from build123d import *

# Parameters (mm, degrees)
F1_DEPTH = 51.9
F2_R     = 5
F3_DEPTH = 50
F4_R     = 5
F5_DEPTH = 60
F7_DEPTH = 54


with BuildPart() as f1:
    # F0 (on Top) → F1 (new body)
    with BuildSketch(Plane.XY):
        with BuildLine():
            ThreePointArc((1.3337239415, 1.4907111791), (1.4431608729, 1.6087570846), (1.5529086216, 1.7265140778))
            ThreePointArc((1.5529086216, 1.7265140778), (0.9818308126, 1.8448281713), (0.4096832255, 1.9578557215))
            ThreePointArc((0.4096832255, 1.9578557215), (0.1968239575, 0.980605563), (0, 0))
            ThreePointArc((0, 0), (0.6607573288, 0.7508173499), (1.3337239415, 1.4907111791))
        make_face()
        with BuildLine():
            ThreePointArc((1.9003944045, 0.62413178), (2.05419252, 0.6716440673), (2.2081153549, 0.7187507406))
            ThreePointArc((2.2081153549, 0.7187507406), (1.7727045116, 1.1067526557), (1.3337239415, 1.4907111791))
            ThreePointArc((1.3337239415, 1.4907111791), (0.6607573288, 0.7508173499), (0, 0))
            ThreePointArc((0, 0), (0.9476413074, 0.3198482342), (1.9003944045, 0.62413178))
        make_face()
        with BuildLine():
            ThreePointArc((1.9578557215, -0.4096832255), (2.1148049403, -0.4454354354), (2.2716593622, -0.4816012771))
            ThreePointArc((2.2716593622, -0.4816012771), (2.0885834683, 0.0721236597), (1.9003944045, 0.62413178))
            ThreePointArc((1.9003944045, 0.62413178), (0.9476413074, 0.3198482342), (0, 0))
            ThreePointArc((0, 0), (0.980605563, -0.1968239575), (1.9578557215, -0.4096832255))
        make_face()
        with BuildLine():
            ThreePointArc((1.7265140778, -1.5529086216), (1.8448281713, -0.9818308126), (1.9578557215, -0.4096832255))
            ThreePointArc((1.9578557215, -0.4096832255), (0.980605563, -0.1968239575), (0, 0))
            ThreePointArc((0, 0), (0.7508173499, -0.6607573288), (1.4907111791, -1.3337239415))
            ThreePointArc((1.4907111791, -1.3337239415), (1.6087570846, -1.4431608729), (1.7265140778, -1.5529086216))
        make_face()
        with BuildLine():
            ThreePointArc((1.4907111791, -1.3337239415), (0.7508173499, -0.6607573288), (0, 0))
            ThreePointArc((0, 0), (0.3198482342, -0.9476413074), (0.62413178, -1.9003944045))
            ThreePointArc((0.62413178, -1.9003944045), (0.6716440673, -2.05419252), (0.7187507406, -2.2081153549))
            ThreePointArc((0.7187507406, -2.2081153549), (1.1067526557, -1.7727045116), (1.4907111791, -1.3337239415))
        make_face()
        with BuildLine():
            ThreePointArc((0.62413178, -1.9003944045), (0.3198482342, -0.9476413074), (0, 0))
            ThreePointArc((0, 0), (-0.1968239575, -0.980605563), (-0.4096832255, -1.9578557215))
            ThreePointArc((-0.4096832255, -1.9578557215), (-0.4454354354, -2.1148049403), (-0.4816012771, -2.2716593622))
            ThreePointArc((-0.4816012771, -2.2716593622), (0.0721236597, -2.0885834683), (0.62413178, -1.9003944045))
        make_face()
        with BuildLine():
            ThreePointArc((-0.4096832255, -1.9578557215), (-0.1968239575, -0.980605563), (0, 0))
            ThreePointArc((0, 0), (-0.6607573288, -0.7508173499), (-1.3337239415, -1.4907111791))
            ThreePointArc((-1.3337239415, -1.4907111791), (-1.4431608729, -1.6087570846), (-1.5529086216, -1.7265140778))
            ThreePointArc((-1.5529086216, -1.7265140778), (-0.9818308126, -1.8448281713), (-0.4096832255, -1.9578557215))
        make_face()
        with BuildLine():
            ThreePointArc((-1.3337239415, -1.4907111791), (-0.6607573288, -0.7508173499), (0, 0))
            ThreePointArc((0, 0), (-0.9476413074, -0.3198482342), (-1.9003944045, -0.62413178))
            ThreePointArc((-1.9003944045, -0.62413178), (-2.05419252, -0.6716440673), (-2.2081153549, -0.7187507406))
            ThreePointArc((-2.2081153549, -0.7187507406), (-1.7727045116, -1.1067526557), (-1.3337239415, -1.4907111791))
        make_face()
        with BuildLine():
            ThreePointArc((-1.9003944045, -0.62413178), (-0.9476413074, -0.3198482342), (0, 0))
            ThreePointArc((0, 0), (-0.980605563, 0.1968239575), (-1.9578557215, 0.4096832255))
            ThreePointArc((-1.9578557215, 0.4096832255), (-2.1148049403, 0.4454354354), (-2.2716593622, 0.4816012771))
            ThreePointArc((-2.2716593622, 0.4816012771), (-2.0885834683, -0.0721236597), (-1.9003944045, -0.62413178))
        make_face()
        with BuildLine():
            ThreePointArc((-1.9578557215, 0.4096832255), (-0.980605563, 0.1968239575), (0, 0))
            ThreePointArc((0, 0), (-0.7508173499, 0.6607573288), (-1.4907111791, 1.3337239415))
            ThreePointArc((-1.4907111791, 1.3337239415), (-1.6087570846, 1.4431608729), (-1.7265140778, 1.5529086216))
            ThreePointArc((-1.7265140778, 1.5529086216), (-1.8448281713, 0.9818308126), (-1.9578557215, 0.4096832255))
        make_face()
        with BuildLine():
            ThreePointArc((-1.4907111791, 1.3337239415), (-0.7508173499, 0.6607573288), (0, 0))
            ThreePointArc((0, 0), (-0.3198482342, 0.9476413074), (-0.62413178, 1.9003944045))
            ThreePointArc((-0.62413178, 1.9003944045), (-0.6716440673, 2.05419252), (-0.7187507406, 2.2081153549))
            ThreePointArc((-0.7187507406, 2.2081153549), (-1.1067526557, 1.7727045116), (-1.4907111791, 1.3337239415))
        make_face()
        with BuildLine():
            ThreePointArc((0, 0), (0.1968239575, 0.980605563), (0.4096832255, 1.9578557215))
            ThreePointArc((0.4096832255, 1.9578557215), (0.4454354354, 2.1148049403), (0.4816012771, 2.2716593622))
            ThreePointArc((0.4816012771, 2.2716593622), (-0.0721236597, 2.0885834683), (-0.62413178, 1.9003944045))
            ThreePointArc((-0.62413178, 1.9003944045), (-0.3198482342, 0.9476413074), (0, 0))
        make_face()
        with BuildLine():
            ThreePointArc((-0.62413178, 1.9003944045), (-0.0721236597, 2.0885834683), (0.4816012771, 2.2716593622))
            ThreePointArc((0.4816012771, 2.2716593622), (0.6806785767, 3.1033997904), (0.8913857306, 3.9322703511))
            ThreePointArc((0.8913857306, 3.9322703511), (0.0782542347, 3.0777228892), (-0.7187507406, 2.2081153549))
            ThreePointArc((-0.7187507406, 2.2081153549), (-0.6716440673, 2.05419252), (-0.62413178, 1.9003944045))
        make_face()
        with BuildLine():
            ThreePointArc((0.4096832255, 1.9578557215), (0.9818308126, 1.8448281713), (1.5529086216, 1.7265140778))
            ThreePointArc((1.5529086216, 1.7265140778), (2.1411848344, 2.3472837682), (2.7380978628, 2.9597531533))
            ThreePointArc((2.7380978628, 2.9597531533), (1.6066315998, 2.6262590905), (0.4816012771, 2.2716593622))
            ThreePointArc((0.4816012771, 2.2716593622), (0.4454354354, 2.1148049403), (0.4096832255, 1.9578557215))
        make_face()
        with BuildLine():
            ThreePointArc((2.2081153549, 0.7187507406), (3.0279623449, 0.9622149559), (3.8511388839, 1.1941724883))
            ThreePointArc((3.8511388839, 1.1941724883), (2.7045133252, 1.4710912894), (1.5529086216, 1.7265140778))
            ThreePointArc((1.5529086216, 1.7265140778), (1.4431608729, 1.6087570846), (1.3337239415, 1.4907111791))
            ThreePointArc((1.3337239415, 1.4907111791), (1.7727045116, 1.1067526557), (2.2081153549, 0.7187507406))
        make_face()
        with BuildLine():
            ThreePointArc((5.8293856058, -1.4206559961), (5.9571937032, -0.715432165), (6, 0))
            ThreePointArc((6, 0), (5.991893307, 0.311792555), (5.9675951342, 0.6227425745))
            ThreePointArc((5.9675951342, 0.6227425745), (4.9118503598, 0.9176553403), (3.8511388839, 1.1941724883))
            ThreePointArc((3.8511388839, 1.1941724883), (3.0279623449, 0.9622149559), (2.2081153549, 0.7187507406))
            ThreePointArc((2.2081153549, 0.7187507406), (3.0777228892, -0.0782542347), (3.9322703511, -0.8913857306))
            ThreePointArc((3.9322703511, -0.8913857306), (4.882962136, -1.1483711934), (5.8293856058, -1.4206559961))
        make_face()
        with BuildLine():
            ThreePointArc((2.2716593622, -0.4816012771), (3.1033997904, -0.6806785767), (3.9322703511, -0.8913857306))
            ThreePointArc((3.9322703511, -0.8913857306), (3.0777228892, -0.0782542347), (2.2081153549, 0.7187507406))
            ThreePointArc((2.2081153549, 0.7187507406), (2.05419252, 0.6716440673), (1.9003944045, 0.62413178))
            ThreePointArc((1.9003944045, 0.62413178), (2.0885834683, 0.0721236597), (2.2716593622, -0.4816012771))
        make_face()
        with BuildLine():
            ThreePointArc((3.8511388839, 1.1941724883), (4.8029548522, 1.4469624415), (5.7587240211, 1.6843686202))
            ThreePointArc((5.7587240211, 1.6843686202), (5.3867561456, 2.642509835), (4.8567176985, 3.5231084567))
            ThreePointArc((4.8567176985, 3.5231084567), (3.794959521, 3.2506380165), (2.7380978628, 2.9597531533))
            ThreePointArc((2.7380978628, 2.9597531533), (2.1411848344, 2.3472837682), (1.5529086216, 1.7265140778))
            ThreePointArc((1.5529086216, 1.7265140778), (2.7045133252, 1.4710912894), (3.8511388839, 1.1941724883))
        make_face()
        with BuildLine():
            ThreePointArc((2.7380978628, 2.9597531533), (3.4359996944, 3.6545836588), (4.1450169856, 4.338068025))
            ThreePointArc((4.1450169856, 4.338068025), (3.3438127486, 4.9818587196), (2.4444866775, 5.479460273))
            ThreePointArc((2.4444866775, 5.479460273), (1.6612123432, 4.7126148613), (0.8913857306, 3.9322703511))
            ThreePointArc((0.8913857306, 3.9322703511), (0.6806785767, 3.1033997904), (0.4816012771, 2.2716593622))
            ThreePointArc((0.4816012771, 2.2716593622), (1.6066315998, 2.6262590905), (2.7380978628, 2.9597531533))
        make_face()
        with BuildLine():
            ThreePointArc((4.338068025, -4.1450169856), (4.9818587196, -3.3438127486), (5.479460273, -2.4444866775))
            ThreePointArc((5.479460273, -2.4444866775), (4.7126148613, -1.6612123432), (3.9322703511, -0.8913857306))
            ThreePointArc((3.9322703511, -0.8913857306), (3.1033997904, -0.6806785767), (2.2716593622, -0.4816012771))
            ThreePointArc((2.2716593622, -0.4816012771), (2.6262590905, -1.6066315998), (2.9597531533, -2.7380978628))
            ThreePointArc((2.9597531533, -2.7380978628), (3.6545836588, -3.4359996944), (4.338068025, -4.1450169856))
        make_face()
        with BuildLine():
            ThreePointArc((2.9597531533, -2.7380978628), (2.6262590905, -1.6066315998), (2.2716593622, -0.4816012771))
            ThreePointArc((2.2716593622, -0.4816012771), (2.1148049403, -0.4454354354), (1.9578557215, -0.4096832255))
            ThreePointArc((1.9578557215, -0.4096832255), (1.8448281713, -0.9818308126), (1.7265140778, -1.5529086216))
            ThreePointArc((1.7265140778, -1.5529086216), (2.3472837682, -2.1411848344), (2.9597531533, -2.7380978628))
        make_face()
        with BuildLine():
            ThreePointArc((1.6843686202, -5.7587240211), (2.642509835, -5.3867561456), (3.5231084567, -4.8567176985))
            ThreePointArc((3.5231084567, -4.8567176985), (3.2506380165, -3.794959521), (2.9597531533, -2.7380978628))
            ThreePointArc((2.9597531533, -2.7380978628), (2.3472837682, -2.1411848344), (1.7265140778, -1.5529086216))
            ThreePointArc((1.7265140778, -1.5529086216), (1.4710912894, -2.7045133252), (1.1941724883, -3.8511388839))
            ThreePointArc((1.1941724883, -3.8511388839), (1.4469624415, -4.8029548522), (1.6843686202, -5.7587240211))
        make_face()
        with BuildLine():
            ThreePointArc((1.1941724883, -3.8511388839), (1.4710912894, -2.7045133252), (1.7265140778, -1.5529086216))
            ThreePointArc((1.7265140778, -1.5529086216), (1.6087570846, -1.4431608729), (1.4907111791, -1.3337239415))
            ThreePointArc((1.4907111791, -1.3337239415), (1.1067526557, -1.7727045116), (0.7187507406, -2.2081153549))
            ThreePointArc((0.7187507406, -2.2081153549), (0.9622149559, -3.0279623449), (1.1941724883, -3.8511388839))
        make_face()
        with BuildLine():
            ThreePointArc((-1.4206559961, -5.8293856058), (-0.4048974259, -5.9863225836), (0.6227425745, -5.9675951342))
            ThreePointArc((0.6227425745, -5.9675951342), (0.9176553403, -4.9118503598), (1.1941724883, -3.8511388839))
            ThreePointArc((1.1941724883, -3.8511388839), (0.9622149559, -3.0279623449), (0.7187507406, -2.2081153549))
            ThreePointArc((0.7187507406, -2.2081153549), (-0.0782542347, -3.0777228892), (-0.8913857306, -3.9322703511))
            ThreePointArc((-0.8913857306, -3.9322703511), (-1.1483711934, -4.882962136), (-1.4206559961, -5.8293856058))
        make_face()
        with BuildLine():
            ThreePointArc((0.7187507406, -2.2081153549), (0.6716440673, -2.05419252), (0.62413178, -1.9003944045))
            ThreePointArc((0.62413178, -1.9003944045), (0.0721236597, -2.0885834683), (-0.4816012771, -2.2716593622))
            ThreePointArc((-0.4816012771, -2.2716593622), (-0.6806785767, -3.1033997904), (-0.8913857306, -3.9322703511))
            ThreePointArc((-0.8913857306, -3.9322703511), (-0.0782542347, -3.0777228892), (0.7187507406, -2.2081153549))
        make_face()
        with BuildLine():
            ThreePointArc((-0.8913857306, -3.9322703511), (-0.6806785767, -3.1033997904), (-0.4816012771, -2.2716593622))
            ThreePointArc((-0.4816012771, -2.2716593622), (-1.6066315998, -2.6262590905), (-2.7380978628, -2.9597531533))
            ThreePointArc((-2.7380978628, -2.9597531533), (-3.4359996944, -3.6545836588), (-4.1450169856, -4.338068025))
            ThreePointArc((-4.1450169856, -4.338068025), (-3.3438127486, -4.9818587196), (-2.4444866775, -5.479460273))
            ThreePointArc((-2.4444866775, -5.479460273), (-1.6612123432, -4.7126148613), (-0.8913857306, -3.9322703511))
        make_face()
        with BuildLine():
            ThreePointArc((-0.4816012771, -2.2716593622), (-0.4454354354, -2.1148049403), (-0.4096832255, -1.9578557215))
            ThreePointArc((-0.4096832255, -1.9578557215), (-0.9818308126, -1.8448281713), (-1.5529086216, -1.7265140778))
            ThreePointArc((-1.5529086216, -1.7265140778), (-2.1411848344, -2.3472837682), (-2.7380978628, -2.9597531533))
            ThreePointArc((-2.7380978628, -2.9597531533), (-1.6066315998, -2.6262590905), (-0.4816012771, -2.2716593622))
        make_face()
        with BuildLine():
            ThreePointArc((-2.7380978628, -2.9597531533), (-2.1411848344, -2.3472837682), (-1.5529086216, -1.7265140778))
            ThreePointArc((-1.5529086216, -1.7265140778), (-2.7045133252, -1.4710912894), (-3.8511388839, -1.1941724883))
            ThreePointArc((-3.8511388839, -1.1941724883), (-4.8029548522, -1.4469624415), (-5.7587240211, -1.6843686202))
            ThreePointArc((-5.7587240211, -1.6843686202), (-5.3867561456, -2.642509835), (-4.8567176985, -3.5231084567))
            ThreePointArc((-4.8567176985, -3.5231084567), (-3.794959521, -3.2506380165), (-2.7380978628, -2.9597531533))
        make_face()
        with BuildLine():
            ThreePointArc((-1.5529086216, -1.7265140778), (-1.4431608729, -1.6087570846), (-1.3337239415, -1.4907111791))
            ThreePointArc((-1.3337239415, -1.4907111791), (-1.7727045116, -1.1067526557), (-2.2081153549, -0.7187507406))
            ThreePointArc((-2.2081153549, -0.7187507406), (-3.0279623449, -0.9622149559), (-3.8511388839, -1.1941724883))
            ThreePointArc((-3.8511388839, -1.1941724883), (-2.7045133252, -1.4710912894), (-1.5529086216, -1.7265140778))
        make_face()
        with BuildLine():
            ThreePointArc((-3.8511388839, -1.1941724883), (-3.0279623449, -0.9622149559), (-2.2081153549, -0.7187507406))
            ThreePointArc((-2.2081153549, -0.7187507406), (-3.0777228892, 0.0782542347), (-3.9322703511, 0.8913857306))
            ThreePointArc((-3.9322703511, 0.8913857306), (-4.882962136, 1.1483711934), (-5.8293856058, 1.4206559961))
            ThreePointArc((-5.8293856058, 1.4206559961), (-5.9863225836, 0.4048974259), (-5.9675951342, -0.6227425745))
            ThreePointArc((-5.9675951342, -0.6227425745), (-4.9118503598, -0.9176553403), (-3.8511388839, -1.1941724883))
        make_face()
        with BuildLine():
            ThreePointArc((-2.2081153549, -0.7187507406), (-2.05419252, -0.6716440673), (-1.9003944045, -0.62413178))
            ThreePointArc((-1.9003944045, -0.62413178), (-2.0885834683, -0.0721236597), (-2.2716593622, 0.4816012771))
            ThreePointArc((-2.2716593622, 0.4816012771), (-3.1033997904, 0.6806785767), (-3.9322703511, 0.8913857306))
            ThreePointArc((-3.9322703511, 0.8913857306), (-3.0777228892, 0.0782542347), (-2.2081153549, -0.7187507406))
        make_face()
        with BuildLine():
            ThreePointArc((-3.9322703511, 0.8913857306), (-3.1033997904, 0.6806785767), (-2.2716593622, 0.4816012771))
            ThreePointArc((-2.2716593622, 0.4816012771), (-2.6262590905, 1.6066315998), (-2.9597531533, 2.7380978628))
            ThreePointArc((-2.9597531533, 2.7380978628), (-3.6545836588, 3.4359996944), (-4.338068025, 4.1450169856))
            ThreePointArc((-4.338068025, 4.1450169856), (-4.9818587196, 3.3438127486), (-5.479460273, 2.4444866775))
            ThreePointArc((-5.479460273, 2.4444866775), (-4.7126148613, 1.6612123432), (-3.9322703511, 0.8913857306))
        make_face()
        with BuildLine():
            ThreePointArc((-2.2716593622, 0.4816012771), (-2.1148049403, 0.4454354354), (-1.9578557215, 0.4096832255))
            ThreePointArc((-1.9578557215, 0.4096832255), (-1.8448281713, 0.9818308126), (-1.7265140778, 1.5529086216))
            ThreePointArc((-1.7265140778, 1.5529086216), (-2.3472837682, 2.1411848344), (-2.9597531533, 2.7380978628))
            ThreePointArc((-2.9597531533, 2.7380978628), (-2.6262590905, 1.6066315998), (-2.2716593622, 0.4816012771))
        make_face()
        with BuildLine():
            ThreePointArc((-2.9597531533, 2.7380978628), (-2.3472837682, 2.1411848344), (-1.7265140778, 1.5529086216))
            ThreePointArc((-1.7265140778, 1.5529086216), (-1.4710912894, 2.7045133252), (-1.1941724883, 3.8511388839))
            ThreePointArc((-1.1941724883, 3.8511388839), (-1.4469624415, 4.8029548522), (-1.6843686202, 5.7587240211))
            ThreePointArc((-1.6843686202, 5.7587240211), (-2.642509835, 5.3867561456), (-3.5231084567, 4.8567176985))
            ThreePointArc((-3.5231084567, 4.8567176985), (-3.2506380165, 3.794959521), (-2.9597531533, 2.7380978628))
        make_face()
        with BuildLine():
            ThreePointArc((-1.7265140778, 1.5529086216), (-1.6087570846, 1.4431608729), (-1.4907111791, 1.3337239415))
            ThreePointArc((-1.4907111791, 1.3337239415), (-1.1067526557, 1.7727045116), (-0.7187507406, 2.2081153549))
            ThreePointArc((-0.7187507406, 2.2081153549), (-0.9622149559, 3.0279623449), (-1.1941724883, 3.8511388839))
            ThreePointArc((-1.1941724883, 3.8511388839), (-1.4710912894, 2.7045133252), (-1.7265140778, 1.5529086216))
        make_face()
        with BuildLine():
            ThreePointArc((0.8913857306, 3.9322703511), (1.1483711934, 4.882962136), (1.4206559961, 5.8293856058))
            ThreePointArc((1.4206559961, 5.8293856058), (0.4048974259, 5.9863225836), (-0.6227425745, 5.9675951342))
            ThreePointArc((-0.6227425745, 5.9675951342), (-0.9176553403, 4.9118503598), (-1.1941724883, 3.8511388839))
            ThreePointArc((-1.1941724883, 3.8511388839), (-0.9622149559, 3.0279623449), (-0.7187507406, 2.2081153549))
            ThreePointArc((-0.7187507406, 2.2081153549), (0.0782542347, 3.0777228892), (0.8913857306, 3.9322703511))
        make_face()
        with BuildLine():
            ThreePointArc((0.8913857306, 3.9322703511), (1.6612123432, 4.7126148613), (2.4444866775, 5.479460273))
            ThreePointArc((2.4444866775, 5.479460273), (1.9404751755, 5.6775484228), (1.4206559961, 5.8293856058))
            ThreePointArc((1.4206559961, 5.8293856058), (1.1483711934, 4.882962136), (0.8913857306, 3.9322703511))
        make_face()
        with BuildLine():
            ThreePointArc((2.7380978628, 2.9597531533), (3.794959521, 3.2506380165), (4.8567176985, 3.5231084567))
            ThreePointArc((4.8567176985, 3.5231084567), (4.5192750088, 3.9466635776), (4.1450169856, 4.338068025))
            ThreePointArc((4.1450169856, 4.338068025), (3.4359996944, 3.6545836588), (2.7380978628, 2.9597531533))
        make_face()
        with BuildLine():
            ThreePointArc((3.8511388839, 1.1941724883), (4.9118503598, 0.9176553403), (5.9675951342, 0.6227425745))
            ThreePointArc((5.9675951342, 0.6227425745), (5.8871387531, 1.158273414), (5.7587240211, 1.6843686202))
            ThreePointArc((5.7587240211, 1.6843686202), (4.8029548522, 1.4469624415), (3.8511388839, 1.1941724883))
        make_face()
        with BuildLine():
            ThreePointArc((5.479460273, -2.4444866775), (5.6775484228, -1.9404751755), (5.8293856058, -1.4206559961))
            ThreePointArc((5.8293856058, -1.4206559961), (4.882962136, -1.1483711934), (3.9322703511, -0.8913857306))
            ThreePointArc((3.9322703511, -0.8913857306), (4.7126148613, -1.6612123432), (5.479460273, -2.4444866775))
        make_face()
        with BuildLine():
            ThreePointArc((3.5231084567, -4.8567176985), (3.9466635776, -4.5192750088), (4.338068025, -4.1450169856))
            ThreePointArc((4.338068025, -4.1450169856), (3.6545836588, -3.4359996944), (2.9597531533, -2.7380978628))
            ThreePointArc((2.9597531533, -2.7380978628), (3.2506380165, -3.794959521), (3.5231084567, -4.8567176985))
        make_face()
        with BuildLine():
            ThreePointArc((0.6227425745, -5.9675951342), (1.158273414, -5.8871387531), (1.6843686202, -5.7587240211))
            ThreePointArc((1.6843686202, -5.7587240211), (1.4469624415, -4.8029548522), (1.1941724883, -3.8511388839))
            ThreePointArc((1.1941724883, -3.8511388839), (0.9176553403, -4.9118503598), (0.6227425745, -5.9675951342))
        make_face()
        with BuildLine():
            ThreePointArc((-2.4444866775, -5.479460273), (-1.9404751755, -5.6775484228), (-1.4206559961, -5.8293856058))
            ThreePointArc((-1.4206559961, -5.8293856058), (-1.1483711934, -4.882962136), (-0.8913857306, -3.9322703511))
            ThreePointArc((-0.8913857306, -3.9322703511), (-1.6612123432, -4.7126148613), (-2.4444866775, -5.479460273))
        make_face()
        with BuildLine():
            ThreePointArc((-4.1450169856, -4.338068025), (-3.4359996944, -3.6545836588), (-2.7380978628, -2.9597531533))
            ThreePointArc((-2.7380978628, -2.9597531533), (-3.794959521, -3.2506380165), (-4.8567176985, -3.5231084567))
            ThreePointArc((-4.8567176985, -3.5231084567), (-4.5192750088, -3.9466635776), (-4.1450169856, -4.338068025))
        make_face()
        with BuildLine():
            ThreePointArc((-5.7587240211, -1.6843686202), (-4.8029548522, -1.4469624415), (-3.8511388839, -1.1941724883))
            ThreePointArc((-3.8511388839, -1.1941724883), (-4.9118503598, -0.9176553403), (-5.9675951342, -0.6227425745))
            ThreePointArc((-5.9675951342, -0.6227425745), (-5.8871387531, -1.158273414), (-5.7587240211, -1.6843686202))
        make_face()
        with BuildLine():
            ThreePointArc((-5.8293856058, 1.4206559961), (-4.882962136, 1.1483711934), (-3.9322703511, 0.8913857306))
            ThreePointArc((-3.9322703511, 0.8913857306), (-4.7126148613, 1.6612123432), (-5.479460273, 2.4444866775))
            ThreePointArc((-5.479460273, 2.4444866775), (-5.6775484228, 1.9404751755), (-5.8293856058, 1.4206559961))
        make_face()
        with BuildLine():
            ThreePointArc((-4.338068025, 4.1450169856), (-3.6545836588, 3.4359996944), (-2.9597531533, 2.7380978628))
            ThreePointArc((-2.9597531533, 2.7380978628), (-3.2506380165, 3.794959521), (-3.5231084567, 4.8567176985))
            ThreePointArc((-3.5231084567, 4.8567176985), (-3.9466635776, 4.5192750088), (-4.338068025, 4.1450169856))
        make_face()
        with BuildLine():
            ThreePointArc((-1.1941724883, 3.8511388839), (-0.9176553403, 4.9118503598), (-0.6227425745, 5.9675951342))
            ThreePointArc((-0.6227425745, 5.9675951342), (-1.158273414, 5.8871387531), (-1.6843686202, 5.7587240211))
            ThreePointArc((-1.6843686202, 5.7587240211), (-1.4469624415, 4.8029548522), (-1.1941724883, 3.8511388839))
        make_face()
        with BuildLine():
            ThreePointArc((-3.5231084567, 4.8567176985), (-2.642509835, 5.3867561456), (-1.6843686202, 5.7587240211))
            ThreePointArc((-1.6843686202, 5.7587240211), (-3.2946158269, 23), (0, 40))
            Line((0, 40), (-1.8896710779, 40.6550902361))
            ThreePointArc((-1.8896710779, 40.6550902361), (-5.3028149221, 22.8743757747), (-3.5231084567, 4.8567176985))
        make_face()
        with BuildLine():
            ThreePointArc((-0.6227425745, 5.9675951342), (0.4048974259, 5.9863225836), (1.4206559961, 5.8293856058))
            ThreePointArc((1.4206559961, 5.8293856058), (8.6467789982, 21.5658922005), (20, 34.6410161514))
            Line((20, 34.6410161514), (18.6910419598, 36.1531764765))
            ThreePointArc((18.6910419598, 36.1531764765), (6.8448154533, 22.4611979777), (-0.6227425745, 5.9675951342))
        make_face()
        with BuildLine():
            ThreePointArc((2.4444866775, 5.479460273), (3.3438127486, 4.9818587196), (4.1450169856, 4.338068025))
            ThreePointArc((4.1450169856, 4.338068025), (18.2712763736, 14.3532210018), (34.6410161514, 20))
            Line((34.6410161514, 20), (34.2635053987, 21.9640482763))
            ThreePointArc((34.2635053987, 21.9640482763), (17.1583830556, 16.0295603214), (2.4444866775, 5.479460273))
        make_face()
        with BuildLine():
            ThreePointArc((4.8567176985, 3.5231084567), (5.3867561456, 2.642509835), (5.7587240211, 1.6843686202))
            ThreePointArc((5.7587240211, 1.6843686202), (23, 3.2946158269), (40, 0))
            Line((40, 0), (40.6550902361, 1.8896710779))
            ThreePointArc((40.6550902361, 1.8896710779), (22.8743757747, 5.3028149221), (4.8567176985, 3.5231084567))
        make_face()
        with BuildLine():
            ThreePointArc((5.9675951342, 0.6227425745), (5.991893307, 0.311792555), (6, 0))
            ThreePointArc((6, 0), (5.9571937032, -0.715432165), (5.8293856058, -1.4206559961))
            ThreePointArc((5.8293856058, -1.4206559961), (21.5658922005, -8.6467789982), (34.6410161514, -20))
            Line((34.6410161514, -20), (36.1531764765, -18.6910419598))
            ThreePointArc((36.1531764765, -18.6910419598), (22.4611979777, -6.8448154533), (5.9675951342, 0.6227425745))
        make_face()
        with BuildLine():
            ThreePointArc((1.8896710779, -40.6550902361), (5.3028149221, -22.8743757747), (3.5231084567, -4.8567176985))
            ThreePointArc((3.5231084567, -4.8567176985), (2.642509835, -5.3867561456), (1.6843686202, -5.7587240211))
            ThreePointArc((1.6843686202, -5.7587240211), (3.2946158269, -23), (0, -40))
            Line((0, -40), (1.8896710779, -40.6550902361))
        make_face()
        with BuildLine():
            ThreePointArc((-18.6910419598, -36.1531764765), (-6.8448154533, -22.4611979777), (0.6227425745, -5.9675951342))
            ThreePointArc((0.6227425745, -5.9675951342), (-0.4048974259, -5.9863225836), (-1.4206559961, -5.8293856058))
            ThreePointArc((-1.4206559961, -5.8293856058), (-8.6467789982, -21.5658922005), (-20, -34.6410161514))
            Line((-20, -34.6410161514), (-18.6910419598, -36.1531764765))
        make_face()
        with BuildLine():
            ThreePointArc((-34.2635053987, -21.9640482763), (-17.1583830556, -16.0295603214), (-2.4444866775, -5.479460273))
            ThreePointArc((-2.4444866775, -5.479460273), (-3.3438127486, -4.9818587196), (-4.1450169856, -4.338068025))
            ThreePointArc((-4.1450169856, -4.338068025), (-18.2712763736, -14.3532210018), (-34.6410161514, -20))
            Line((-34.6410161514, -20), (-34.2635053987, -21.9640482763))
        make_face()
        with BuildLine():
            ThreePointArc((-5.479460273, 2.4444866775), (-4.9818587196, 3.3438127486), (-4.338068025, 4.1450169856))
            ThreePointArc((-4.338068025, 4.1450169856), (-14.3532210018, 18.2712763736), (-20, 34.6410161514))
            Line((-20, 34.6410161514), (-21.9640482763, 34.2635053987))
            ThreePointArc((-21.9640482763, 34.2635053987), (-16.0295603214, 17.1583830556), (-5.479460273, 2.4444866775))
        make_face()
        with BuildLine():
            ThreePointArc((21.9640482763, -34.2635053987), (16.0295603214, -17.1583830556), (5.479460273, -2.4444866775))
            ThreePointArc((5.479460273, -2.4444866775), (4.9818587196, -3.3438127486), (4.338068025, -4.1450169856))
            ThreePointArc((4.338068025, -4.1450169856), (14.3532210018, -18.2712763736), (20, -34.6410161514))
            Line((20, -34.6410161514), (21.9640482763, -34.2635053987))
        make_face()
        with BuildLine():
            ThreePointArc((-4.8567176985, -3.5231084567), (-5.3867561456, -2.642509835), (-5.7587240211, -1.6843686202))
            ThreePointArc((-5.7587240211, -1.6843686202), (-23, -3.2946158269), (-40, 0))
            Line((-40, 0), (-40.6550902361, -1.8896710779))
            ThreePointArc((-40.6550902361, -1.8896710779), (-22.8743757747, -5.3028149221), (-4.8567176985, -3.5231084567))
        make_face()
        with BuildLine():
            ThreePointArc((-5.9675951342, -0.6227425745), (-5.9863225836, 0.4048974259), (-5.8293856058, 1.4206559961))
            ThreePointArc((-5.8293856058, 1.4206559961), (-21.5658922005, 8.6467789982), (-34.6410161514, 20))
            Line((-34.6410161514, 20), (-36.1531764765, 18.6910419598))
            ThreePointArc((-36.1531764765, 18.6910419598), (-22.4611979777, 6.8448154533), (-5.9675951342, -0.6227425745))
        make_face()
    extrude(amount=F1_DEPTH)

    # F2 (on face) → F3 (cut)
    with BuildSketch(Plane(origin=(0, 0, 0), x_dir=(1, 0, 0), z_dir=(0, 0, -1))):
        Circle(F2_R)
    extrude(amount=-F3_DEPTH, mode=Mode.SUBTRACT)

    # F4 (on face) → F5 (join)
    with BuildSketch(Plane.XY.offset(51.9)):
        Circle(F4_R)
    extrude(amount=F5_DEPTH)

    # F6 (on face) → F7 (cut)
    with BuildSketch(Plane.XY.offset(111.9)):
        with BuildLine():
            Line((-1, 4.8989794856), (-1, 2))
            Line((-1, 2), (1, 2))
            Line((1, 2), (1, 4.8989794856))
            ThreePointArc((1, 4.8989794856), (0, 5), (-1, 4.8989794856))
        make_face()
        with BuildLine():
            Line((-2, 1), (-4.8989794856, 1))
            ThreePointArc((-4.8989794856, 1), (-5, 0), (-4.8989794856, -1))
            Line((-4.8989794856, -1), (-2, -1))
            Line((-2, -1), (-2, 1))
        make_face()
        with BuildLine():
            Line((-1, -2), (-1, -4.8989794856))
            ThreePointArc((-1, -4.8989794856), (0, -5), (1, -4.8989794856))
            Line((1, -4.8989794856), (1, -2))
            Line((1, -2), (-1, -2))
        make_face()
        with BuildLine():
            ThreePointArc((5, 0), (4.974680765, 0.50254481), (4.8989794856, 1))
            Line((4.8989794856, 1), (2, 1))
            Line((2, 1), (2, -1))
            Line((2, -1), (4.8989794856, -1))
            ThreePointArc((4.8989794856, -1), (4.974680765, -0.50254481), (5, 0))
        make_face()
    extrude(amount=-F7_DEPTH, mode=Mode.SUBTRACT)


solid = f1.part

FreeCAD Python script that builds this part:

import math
import FreeCAD as App
import Part
import Sketcher
from FreeCAD import Vector

doc = App.newDocument("Part")
params = doc.addObject("Spreadsheet::Sheet", "Params")
for row, (alias, value) in enumerate([
    ("sketch1_radius", "6 mm"),
    ("sketch1_length", "2 mm"),
    ("pad1_length", "51.9 mm"),
    ("sketch2_diameter", "10 mm"),
    ("pocket1_length", "50 mm"),
    ("sketch3_diameter", "10 mm"),
    ("pad2_length", "60 mm"),
    ("sketch4_radius", "5 mm"),
    ("sketch4_width", "2 mm"),
    ("pocket2_length", "54 mm"),
], start=1):
    params.set(f"A{row}", alias)
    params.set(f"B{row}", "=" + value)
    params.setAlias(f"B{row}", alias)

body = doc.addObject("PartDesign::Body", "Body")

sketch1 = body.newObject("Sketcher::SketchObject", "Sketch")
sketch1.AttachmentSupport = (doc.getObject("XY_Plane"), [""])
sketch1.MapMode = "FlatFace"
sketch1.addGeometry(Part.ArcOfCircle(Part.Circle(Vector(0, 0, 0), Vector(0, 0, 1), 6), math.radians(125.96), math.radians(136.3)), False)
sketch1.addGeometry(Part.ArcOfCircle(Part.Circle(Vector(40, 46.2, 0), Vector(0, 0, 1), 61.1), math.radians(-169), math.radians(-137)), False)
sketch1.addGeometry(Part.LineSegment(Vector(-20, 34.6, 0), Vector(-22, 34.3, 0)), False)
sketch1.addGeometry(Part.ArcOfCircle(Part.Circle(Vector(40, 46.2, 0), Vector(0, 0, 1), 63.1), math.radians(-169), math.radians(-136)), False)
sketch1.addGeometry(Part.ArcOfCircle(Part.Circle(Vector(0, 0, 0), Vector(0, 0, 1), 6), math.radians(155.96), math.radians(166.3)), False)
sketch1.addGeometry(Part.ArcOfCircle(Part.Circle(Vector(11.5, 60, 0), Vector(0, 0, 1), 61.1), math.radians(-139), math.radians(-107)), False)
sketch1.addGeometry(Part.LineSegment(Vector(-34.6, 20, 0), Vector(-36.2, 18.7, 0)), False)
sketch1.addGeometry(Part.ArcOfCircle(Part.Circle(Vector(11.5, 60, 0), Vector(0, 0, 1), 63.1), math.radians(-139), math.radians(-106)), False)
sketch1.addGeometry(Part.ArcOfCircle(Part.Circle(Vector(0, 0, 0), Vector(0, 0, 1), 6), math.radians(-174.04), math.radians(-163.7)), False)
sketch1.addGeometry(Part.ArcOfCircle(Part.Circle(Vector(-20, 57.7, 0), Vector(0, 0, 1), 61.1), math.radians(-109), math.radians(-77)), False)
sketch1.addGeometry(Part.LineSegment(Vector(-40, 0, 0), Vector(-40.7, -1.9, 0)), False)
sketch1.addGeometry(Part.ArcOfCircle(Part.Circle(Vector(-20, 57.7, 0), Vector(0, 0, 1), 63.1), math.radians(-109), math.radians(-76)), False)
sketch1.addGeometry(Part.ArcOfCircle(Part.Circle(Vector(0, 0, 0), Vector(0, 0, 1), 6), math.radians(-144.04), math.radians(-133.7)), False)
sketch1.addGeometry(Part.ArcOfCircle(Part.Circle(Vector(-46.2, 40, 0), Vector(0, 0, 1), 61.1), math.radians(-79), math.radians(-47)), False)
sketch1.addGeometry(Part.LineSegment(Vector(-34.6, -20, 0), Vector(-34.3, -22, 0)), False)
sketch1.addGeometry(Part.ArcOfCircle(Part.Circle(Vector(-46.2, 40, 0), Vector(0, 0, 1), 63.1), math.radians(-79), math.radians(-46)), False)
sketch1.addGeometry(Part.ArcOfCircle(Part.Circle(Vector(0, 0, 0), Vector(0, 0, 1), 6), math.radians(-114.04), math.radians(-103.7)), False)
sketch1.addGeometry(Part.ArcOfCircle(Part.Circle(Vector(-60, 11.5, 0), Vector(0, 0, 1), 61.1), math.radians(-49), math.radians(-17)), False)
sketch1.addGeometry(Part.LineSegment(Vector(-20, -34.6, 0), Vector(-18.7, -36.2, 0)), False)
sketch1.addGeometry(Part.ArcOfCircle(Part.Circle(Vector(-60, 11.5, 0), Vector(0, 0, 1), 63.1), math.radians(-49), math.radians(-16)), False)
sketch1.addGeometry(Part.ArcOfCircle(Part.Circle(Vector(0, 0, 0), Vector(0, 0, 1), 6), math.radians(-84.04), math.radians(-73.7)), False)
sketch1.addGeometry(Part.ArcOfCircle(Part.Circle(Vector(-57.7, -20, 0), Vector(0, 0, 1), 61.1), math.radians(-19), math.radians(13)), False)
sketch1.addGeometry(Part.LineSegment(Vector(0, -40, 0), Vector(1.9, -40.7, 0)), False)
sketch1.addGeometry(Part.ArcOfCircle(Part.Circle(Vector(-57.7, -20, 0), Vector(0, 0, 1), 63.1), math.radians(-19), math.radians(14)), False)
sketch1.addGeometry(Part.ArcOfCircle(Part.Circle(Vector(0, 0, 0), Vector(0, 0, 1), 6), math.radians(-54.04), math.radians(-43.7)), False)
sketch1.addGeometry(Part.ArcOfCircle(Part.Circle(Vector(-40, -46.2, 0), Vector(0, 0, 1), 61.1), math.radians(11), math.radians(43)), False)
sketch1.addGeometry(Part.LineSegment(Vector(20, -34.6, 0), Vector(22, -34.3, 0)), False)
sketch1.addGeometry(Part.ArcOfCircle(Part.Circle(Vector(-40, -46.2, 0), Vector(0, 0, 1), 63.1), math.radians(11), math.radians(44)), False)
sketch1.addGeometry(Part.ArcOfCircle(Part.Circle(Vector(0, 0, 0), Vector(0, 0, 1), 6), math.radians(-24.04), math.radians(-13.7)), False)
sketch1.addGeometry(Part.ArcOfCircle(Part.Circle(Vector(-11.5, -60, 0), Vector(0, 0, 1), 61.1), math.radians(41), math.radians(73)), False)
sketch1.addGeometry(Part.LineSegment(Vector(34.6, -20, 0), Vector(36.2, -18.7, 0)), False)
sketch1.addGeometry(Part.ArcOfCircle(Part.Circle(Vector(-11.5, -60, 0), Vector(0, 0, 1), 63.1), math.radians(41), math.radians(74)), False)
sketch1.addGeometry(Part.ArcOfCircle(Part.Circle(Vector(0, 0, 0), Vector(0, 0, 1), 6), math.radians(5.96), math.radians(16.3)), False)
sketch1.addGeometry(Part.ArcOfCircle(Part.Circle(Vector(20, -57.7, 0), Vector(0, 0, 1), 61.1), math.radians(71), math.radians(103)), False)
sketch1.addGeometry(Part.LineSegment(Vector(40, 0, 0), Vector(40.7, 1.9, 0)), False)
sketch1.addGeometry(Part.ArcOfCircle(Part.Circle(Vector(20, -57.7, 0), Vector(0, 0, 1), 63.1), math.radians(71), math.radians(104)), False)
sketch1.addGeometry(Part.ArcOfCircle(Part.Circle(Vector(0, 0, 0), Vector(0, 0, 1), 6), math.radians(35.96), math.radians(46.3)), False)
sketch1.addGeometry(Part.ArcOfCircle(Part.Circle(Vector(46.2, -40, 0), Vector(0, 0, 1), 61.1), math.radians(101), math.radians(133)), False)
sketch1.addGeometry(Part.LineSegment(Vector(34.6, 20, 0), Vector(34.3, 22, 0)), False)
sketch1.addGeometry(Part.ArcOfCircle(Part.Circle(Vector(46.2, -40, 0), Vector(0, 0, 1), 63.1), math.radians(101), math.radians(134)), False)
sketch1.addGeometry(Part.ArcOfCircle(Part.Circle(Vector(0, 0, 0), Vector(0, 0, 1), 6), math.radians(65.96), math.radians(76.3)), False)
sketch1.addGeometry(Part.ArcOfCircle(Part.Circle(Vector(60, -11.5, 0), Vector(0, 0, 1), 61.1), math.radians(131), math.radians(163)), False)
sketch1.addGeometry(Part.LineSegment(Vector(20, 34.6, 0), Vector(18.7, 36.2, 0)), False)
sketch1.addGeometry(Part.ArcOfCircle(Part.Circle(Vector(60, -11.5, 0), Vector(0, 0, 1), 63.1), math.radians(131), math.radians(164)), False)
sketch1.addGeometry(Part.ArcOfCircle(Part.Circle(Vector(0, 0, 0), Vector(0, 0, 1), 6), math.radians(95.96), math.radians(106.3)), False)
sketch1.addGeometry(Part.ArcOfCircle(Part.Circle(Vector(57.7, 20, 0), Vector(0, 0, 1), 61.1), math.radians(161), math.radians(193)), False)
sketch1.addGeometry(Part.LineSegment(Vector(0, 40, 0), Vector(-1.9, 40.7, 0)), False)
sketch1.addGeometry(Part.ArcOfCircle(Part.Circle(Vector(57.7, 20, 0), Vector(0, 0, 1), 63.1), math.radians(161), math.radians(194)), False)
sketch1.addConstraint(Sketcher.Constraint("Coincident", 0, 2, 1, 2))
sketch1.addConstraint(Sketcher.Constraint("Coincident", 1, 1, 2, 1))
sketch1.addConstraint(Sketcher.Constraint("Coincident", 2, 2, 3, 1))
sketch1.addConstraint(Sketcher.Constraint("Coincident", 3, 2, 4, 1))
sketch1.addConstraint(Sketcher.Constraint("Coincident", 4, 2, 5, 2))
sketch1.addConstraint(Sketcher.Constraint("Coincident", 5, 1, 6, 1))
sketch1.addConstraint(Sketcher.Constraint("Coincident", 6, 2, 7, 1))
sketch1.addConstraint(Sketcher.Constraint("Coincident", 7, 2, 8, 1))
sketch1.addConstraint(Sketcher.Constraint("Coincident", 8, 2, 9, 2))
sketch1.addConstraint(Sketcher.Constraint("Coincident", 9, 1, 10, 1))
sketch1.addConstraint(Sketcher.Constraint("Coincident", 10, 2, 11, 1))
sketch1.addConstraint(Sketcher.Constraint("Coincident", 11, 2, 12, 1))
sketch1.addConstraint(Sketcher.Constraint("Coincident", 12, 2, 13, 2))
sketch1.addConstraint(Sketcher.Constraint("Coincident", 13, 1, 14, 1))
sketch1.addConstraint(Sketcher.Constraint("Coincident", 14, 2, 15, 1))
sketch1.addConstraint(Sketcher.Constraint("Coincident", 15, 2, 16, 1))
sketch1.addConstraint(Sketcher.Constraint("Coincident", 16, 2, 17, 2))
sketch1.addConstraint(Sketcher.Constraint("Coincident", 17, 1, 18, 1))
sketch1.addConstraint(Sketcher.Constraint("Coincident", 18, 2, 19, 1))
sketch1.addConstraint(Sketcher.Constraint("Coincident", 19, 2, 20, 1))
sketch1.addConstraint(Sketcher.Constraint("Coincident", 20, 2, 21, 2))
sketch1.addConstraint(Sketcher.Constraint("Coincident", 21, 1, 22, 1))
sketch1.addConstraint(Sketcher.Constraint("Coincident", 22, 2, 23, 1))
sketch1.addConstraint(Sketcher.Constraint("Coincident", 23, 2, 24, 1))
sketch1.addConstraint(Sketcher.Constraint("Coincident", 24, 2, 25, 2))
sketch1.addConstraint(Sketcher.Constraint("Coincident", 25, 1, 26, 1))
sketch1.addConstraint(Sketcher.Constraint("Coincident", 26, 2, 27, 1))
sketch1.addConstraint(Sketcher.Constraint("Coincident", 27, 2, 28, 1))
sketch1.addConstraint(Sketcher.Constraint("Coincident", 28, 2, 29, 2))
sketch1.addConstraint(Sketcher.Constraint("Coincident", 29, 1, 30, 1))
sketch1.addConstraint(Sketcher.Constraint("Coincident", 30, 2, 31, 1))
sketch1.addConstraint(Sketcher.Constraint("Coincident", 31, 2, 32, 1))
sketch1.addConstraint(Sketcher.Constraint("Coincident", 32, 2, 33, 2))
sketch1.addConstraint(Sketcher.Constraint("Coincident", 33, 1, 34, 1))
sketch1.addConstraint(Sketcher.Constraint("Coincident", 34, 2, 35, 1))
sketch1.addConstraint(Sketcher.Constraint("Coincident", 35, 2, 36, 1))
sketch1.addConstraint(Sketcher.Constraint("Coincident", 36, 2, 37, 2))
sketch1.addConstraint(Sketcher.Constraint("Coincident", 37, 1, 38, 1))
sketch1.addConstraint(Sketcher.Constraint("Coincident", 38, 2, 39, 1))
sketch1.addConstraint(Sketcher.Constraint("Coincident", 39, 2, 40, 1))
sketch1.addConstraint(Sketcher.Constraint("Coincident", 40, 2, 41, 2))
sketch1.addConstraint(Sketcher.Constraint("Coincident", 41, 1, 42, 1))
sketch1.addConstraint(Sketcher.Constraint("Coincident", 42, 2, 43, 1))
sketch1.addConstraint(Sketcher.Constraint("Coincident", 43, 2, 44, 1))
sketch1.addConstraint(Sketcher.Constraint("Coincident", 44, 2, 45, 2))
sketch1.addConstraint(Sketcher.Constraint("Coincident", 45, 1, 46, 1))
sketch1.addConstraint(Sketcher.Constraint("Coincident", 46, 2, 47, 1))
sketch1.addConstraint(Sketcher.Constraint("Coincident", 47, 2, 0, 1))
sketch1.addConstraint(Sketcher.Constraint("Coincident", 0, 3, -1, 1))
sketch1.addConstraint(Sketcher.Constraint("Coincident", 4, 3, -1, 1))
sketch1.addConstraint(Sketcher.Constraint("Coincident", 8, 3, -1, 1))
sketch1.addConstraint(Sketcher.Constraint("Coincident", 12, 3, -1, 1))
sketch1.addConstraint(Sketcher.Constraint("Coincident", 16, 3, -1, 1))
sketch1.addConstraint(Sketcher.Constraint("Coincident", 20, 3, -1, 1))
sketch1.addConstraint(Sketcher.Constraint("Coincident", 24, 3, -1, 1))
sketch1.addConstraint(Sketcher.Constraint("Coincident", 28, 3, -1, 1))
sketch1.addConstraint(Sketcher.Constraint("Coincident", 32, 3, -1, 1))
sketch1.addConstraint(Sketcher.Constraint("Coincident", 36, 3, -1, 1))
sketch1.addConstraint(Sketcher.Constraint("Coincident", 40, 3, -1, 1))
sketch1.addConstraint(Sketcher.Constraint("Coincident", 44, 3, -1, 1))
sketch1.addConstraint(Sketcher.Constraint("Coincident", 3, 3, 1, 3))
sketch1.addConstraint(Sketcher.Constraint("Coincident", 7, 3, 5, 3))
sketch1.addConstraint(Sketcher.Constraint("Coincident", 11, 3, 9, 3))
sketch1.addConstraint(Sketcher.Constraint("Coincident", 15, 3, 13, 3))
sketch1.addConstraint(Sketcher.Constraint("Coincident", 19, 3, 17, 3))
sketch1.addConstraint(Sketcher.Constraint("Coincident", 23, 3, 21, 3))
sketch1.addConstraint(Sketcher.Constraint("Coincident", 27, 3, 25, 3))
sketch1.addConstraint(Sketcher.Constraint("Coincident", 31, 3, 29, 3))
sketch1.addConstraint(Sketcher.Constraint("Coincident", 35, 3, 33, 3))
sketch1.addConstraint(Sketcher.Constraint("Coincident", 39, 3, 37, 3))
sketch1.addConstraint(Sketcher.Constraint("Coincident", 43, 3, 41, 3))
sketch1.addConstraint(Sketcher.Constraint("Coincident", 47, 3, 45, 3))
sketch1.addConstraint(Sketcher.Constraint("Equal", 0, 4))
sketch1.addConstraint(Sketcher.Constraint("Equal", 1, 5))
sketch1.addConstraint(Sketcher.Constraint("Equal", 3, 7))
sketch1.addConstraint(Sketcher.Constraint("Equal", 4, 8))
sketch1.addConstraint(Sketcher.Constraint("Equal", 5, 9))
sketch1.addConstraint(Sketcher.Constraint("Equal", 7, 11))
sketch1.addConstraint(Sketcher.Constraint("Equal", 8, 12))
sketch1.addConstraint(Sketcher.Constraint("Equal", 9, 13))
sketch1.addConstraint(Sketcher.Constraint("Equal", 11, 15))
sketch1.addConstraint(Sketcher.Constraint("Equal", 12, 16))
sketch1.addConstraint(Sketcher.Constraint("Equal", 13, 17))
sketch1.addConstraint(Sketcher.Constraint("Equal", 15, 19))
sketch1.addConstraint(Sketcher.Constraint("Equal", 16, 20))
sketch1.addConstraint(Sketcher.Constraint("Equal", 17, 21))
sketch1.addConstraint(Sketcher.Constraint("Equal", 19, 23))
sketch1.addConstraint(Sketcher.Constraint("Equal", 20, 24))
sketch1.addConstraint(Sketcher.Constraint("Equal", 21, 25))
sketch1.addConstraint(Sketcher.Constraint("Equal", 23, 27))
sketch1.addConstraint(Sketcher.Constraint("Equal", 24, 28))
sketch1.addConstraint(Sketcher.Constraint("Equal", 25, 29))
sketch1.addConstraint(Sketcher.Constraint("Equal", 27, 31))
sketch1.addConstraint(Sketcher.Constraint("Equal", 28, 32))
sketch1.addConstraint(Sketcher.Constraint("Equal", 29, 33))
sketch1.addConstraint(Sketcher.Constraint("Equal", 31, 35))
sketch1.addConstraint(Sketcher.Constraint("Equal", 32, 36))
sketch1.addConstraint(Sketcher.Constraint("Equal", 33, 37))
sketch1.addConstraint(Sketcher.Constraint("Equal", 35, 39))
sketch1.addConstraint(Sketcher.Constraint("Equal", 36, 40))
sketch1.addConstraint(Sketcher.Constraint("Equal", 37, 41))
sketch1.addConstraint(Sketcher.Constraint("Equal", 39, 43))
sketch1.addConstraint(Sketcher.Constraint("Equal", 40, 44))
sketch1.addConstraint(Sketcher.Constraint("Equal", 41, 45))
sketch1.addConstraint(Sketcher.Constraint("Equal", 43, 47))
sketch1.addConstraint(Sketcher.Constraint("Symmetric", 1, 3, 25, 3, -1, 1))
sketch1.addConstraint(Sketcher.Constraint("Symmetric", 5, 3, 29, 3, -1, 1))
sketch1.addConstraint(Sketcher.Constraint("Symmetric", 9, 3, 33, 3, -1, 1))
sketch1.addConstraint(Sketcher.Constraint("Symmetric", 13, 3, 37, 3, -1, 1))
sketch1.addConstraint(Sketcher.Constraint("Symmetric", 17, 3, 41, 3, -1, 1))
sketch1.addConstraint(Sketcher.Constraint("Symmetric", 21, 3, 45, 3, -1, 1))
sketch1.addConstraint(Sketcher.Constraint("Symmetric", 17, 1, 25, 1, -2))
sketch1.addConstraint(Sketcher.Constraint("Symmetric", 13, 1, 29, 1, -2))
sketch1.addConstraint(Sketcher.Constraint("Symmetric", 9, 1, 33, 1, -2))
sketch1.addConstraint(Sketcher.Constraint("Symmetric", 5, 1, 37, 1, -2))
sketch1.addConstraint(Sketcher.Constraint("Symmetric", 1, 1, 41, 1, -2))
sketch1.addConstraint(Sketcher.Constraint("Symmetric", 21, 1, 45, 1, -1))
sketch1.addConstraint(Sketcher.Constraint("Perpendicular", 2, 14))
sketch1.addConstraint(Sketcher.Constraint("Perpendicular", 6, 18))
sketch1.addConstraint(Sketcher.Constraint("Perpendicular", 10, 22))
sketch1.addConstraint(Sketcher.Constraint("Perpendicular", 14, 26))
sketch1.addConstraint(Sketcher.Constraint("Perpendicular", 18, 30))
sketch1.addConstraint(Sketcher.Constraint("Perpendicular", 22, 34))
sketch1.addConstraint(Sketcher.Constraint("Perpendicular", 26, 38))
sketch1.addConstraint(Sketcher.Constraint("Perpendicular", 30, 42))
sketch1.addConstraint(Sketcher.Constraint("Perpendicular", 34, 46))
sketch1.addConstraint(Sketcher.Constraint("Horizontal", 47, 3, 5, 1))
sketch1.addConstraint(Sketcher.Constraint("Vertical", 11, 3, 1, 1))
sketch1.addConstraint(Sketcher.Constraint("Radius", 0, 6.0))
sketch1.addConstraint(Sketcher.Constraint("Distance", 2, 2.0))
sketch1.addConstraint(Sketcher.Constraint("DistanceX", 9, 3, -1, 1, 20.0))
sketch1.addConstraint(Sketcher.Constraint("DistanceY", 21, 3, -1, 1, 20.0))
sketch1.addConstraint(Sketcher.Constraint("DistanceX", 9, 1, -1, 1, 40.0))
sketch1.addConstraint(Sketcher.Constraint("DistanceY", 21, 1, -1, 1, 40.0))
sketch1.addConstraint(Sketcher.Constraint("Radius", 1, 61.06029))
sketch1.addConstraint(Sketcher.Constraint("DistanceX", -1, 1, 1, 3, 39.962679))
sketch1.addConstraint(Sketcher.Constraint("DistanceX", -1, 1, 5, 3, 11.525458))
sketch1.addConstraint(Sketcher.Constraint("DistanceY", -1, 1, 5, 3, 59.962679))
sketch1.addConstraint(Sketcher.Constraint("DistanceY", -1, 1, 13, 3, 39.962679))
sketch1.addConstraint(Sketcher.Constraint("DistanceX", 17, 3, -1, 1, 59.962679))
sketch1.addConstraint(Sketcher.Constraint("DistanceY", -1, 1, 17, 3, 11.525458))
sketch1.addConstraint(Sketcher.Constraint("DistanceX", 2, 2, -1, 1, 21.964048))
sketch1.addConstraint(Sketcher.Constraint("DistanceY", -1, 1, 6, 2, 18.691042))
sketch1.addConstraint(Sketcher.Constraint("DistanceX", 10, 2, -1, 1, 40.65509))
sketch1.setExpression("Constraints[128]", "Params.sketch1_radius")
sketch1.setExpression("Constraints[129]", "Params.sketch1_length")
pad1 = body.newObject("PartDesign::Pad", "Pad")
pad1.Profile = sketch1
pad1.setExpression("Length", "Params.pad1_length")

sketch2 = body.newObject("Sketcher::SketchObject", "Sketch001")
sketch2.AttachmentSupport = (doc.getObject("XY_Plane"), [""])
sketch2.MapMode = "FlatFace"
sketch2.addGeometry(Part.Circle(Vector(0, 0, 0), Vector(0, 0, 1), 5), False)
sketch2.addConstraint(Sketcher.Constraint("Coincident", 0, 3, -1, 1))
sketch2.addConstraint(Sketcher.Constraint("Diameter", 0, 10.0))
sketch2.setExpression("Constraints[1]", "Params.sketch2_diameter")
pocket1 = body.newObject("PartDesign::Pocket", "Pocket")
pocket1.Profile = sketch2
pocket1.setExpression("Length", "Params.pocket1_length")
pocket1.Reversed = True

sketch3 = body.newObject("Sketcher::SketchObject", "Sketch002")
sketch3.AttachmentSupport = (doc.getObject("XY_Plane"), [""])
sketch3.MapMode = "FlatFace"
sketch3.AttachmentOffset = App.Placement(Vector(0, 0, 51.9), App.Rotation())
sketch3.addGeometry(Part.Circle(Vector(0, 0, 0), Vector(0, 0, 1), 5), False)
sketch3.addConstraint(Sketcher.Constraint("Coincident", 0, 3, -1, 1))
sketch3.addConstraint(Sketcher.Constraint("Diameter", 0, 10.0))
sketch3.setExpression("Constraints[1]", "Params.sketch3_diameter")
pad2 = body.newObject("PartDesign::Pad", "Pad001")
pad2.Profile = sketch3
pad2.setExpression("Length", "Params.pad2_length")

sketch4 = body.newObject("Sketcher::SketchObject", "Sketch003")
sketch4.AttachmentSupport = (doc.getObject("XY_Plane"), [""])
sketch4.MapMode = "FlatFace"
sketch4.AttachmentOffset = App.Placement(Vector(0, 0, 111.9), App.Rotation())
sketch4.addGeometry(Part.LineSegment(Vector(-1, 4.9, 0), Vector(-1, 2, 0)), False)
sketch4.addGeometry(Part.LineSegment(Vector(-1, 2, 0), Vector(1, 2, 0)), False)
sketch4.addGeometry(Part.LineSegment(Vector(1, 2, 0), Vector(1, 4.9, 0)), False)
sketch4.addGeometry(Part.ArcOfCircle(Part.Circle(Vector(0, 0, 0), Vector(0, 0, 1), 5), math.radians(78), math.radians(102)), False)
sketch4.addGeometry(Part.LineSegment(Vector(-2, 1, 0), Vector(-4.9, 1, 0)), False)
sketch4.addGeometry(Part.ArcOfCircle(Part.Circle(Vector(0, 0, 0), Vector(0, 0, 1), 5), math.radians(168), math.radians(192)), False)
sketch4.addGeometry(Part.LineSegment(Vector(-4.9, -1, 0), Vector(-2, -1, 0)), False)
sketch4.addGeometry(Part.LineSegment(Vector(-2, -1, 0), Vector(-2, 1, 0)), False)
sketch4.addGeometry(Part.LineSegment(Vector(-1, -2, 0), Vector(-1, -4.9, 0)), False)
sketch4.addGeometry(Part.ArcOfCircle(Part.Circle(Vector(0, 0, 0), Vector(0, 0, 1), 5), math.radians(-102), math.radians(-78)), False)
sketch4.addGeometry(Part.LineSegment(Vector(1, -4.9, 0), Vector(1, -2, 0)), False)
sketch4.addGeometry(Part.LineSegment(Vector(1, -2, 0), Vector(-1, -2, 0)), False)
sketch4.addGeometry(Part.ArcOfCircle(Part.Circle(Vector(0, 0, 0), Vector(0, 0, 1), 5), math.radians(0), math.radians(11.54)), False)
sketch4.addGeometry(Part.LineSegment(Vector(4.9, 1, 0), Vector(2, 1, 0)), False)
sketch4.addGeometry(Part.LineSegment(Vector(2, 1, 0), Vector(2, -1, 0)), False)
sketch4.addGeometry(Part.LineSegment(Vector(2, -1, 0), Vector(4.9, -1, 0)), False)
sketch4.addGeometry(Part.ArcOfCircle(Part.Circle(Vector(0, 0, 0), Vector(0, 0, 1), 5), math.radians(-11.54), math.radians(0)), False)
sketch4.addConstraint(Sketcher.Constraint("Coincident", 0, 2, 1, 1))
sketch4.addConstraint(Sketcher.Constraint("Coincident", 1, 2, 2, 1))
sketch4.addConstraint(Sketcher.Constraint("Coincident", 2, 2, 3, 1))
sketch4.addConstraint(Sketcher.Constraint("Coincident", 3, 2, 0, 1))
sketch4.addConstraint(Sketcher.Constraint("Coincident", 4, 2, 5, 1))
sketch4.addConstraint(Sketcher.Constraint("Coincident", 5, 2, 6, 1))
sketch4.addConstraint(Sketcher.Constraint("Coincident", 6, 2, 7, 1))
sketch4.addConstraint(Sketcher.Constraint("Coincident", 7, 2, 4, 1))
sketch4.addConstraint(Sketcher.Constraint("Coincident", 8, 2, 9, 1))
sketch4.addConstraint(Sketcher.Constraint("Coincident", 9, 2, 10, 1))
sketch4.addConstraint(Sketcher.Constraint("Coincident", 10, 2, 11, 1))
sketch4.addConstraint(Sketcher.Constraint("Coincident", 11, 2, 8, 1))
sketch4.addConstraint(Sketcher.Constraint("Coincident", 12, 2, 13, 1))
sketch4.addConstraint(Sketcher.Constraint("Coincident", 13, 2, 14, 1))
sketch4.addConstraint(Sketcher.Constraint("Coincident", 14, 2, 15, 1))
sketch4.addConstraint(Sketcher.Constraint("Coincident", 15, 2, 16, 1))
sketch4.addConstraint(Sketcher.Constraint("Tangent", 16, 2, 12, 1))
sketch4.addConstraint(Sketcher.Constraint("Vertical", 0))
sketch4.addConstraint(Sketcher.Constraint("Horizontal", 1))
sketch4.addConstraint(Sketcher.Constraint("Vertical", 2))
sketch4.addConstraint(Sketcher.Constraint("Horizontal", 4))
sketch4.addConstraint(Sketcher.Constraint("Horizontal", 6))
sketch4.addConstraint(Sketcher.Constraint("Vertical", 7))
sketch4.addConstraint(Sketcher.Constraint("Vertical", 8))
sketch4.addConstraint(Sketcher.Constraint("Vertical", 10))
sketch4.addConstraint(Sketcher.Constraint("Horizontal", 11))
sketch4.addConstraint(Sketcher.Constraint("Horizontal", 13))
sketch4.addConstraint(Sketcher.Constraint("Vertical", 14))
sketch4.addConstraint(Sketcher.Constraint("Horizontal", 15))
sketch4.addConstraint(Sketcher.Constraint("Coincident", 3, 3, -1, 1))
sketch4.addConstraint(Sketcher.Constraint("Coincident", 5, 3, -1, 1))
sketch4.addConstraint(Sketcher.Constraint("Coincident", 9, 3, -1, 1))
sketch4.addConstraint(Sketcher.Constraint("Coincident", 12, 3, -1, 1))
sketch4.addConstraint(Sketcher.Constraint("Equal", 3, 5))
sketch4.addConstraint(Sketcher.Constraint("Equal", 5, 9))
sketch4.addConstraint(Sketcher.Constraint("Equal", 9, 12))
sketch4.addConstraint(Sketcher.Constraint("Equal", 12, 16))
sketch4.addConstraint(Sketcher.Constraint("Symmetric", 0, 2, 10, 2, -1, 1))
sketch4.addConstraint(Sketcher.Constraint("Symmetric", 6, 2, 13, 2, -1, 1))
sketch4.addConstraint(Sketcher.Constraint("PointOnObject", 16, 2, -1))
sketch4.addConstraint(Sketcher.Constraint("Horizontal", 2, 2, 3, 2))
sketch4.addConstraint(Sketcher.Constraint("Horizontal", 8, 2, 9, 2))
sketch4.addConstraint(Sketcher.Constraint("Horizontal", 7, 2, 12, 2))
sketch4.addConstraint(Sketcher.Constraint("Horizontal", 6, 2, 14, 2))
sketch4.addConstraint(Sketcher.Constraint("Equal", 15, 0))
sketch4.addConstraint(Sketcher.Constraint("Equal", 11, 7))
sketch4.addConstraint(Sketcher.Constraint("Radius", 3, 5.0))
sketch4.addConstraint(Sketcher.Constraint("DistanceX", 1, 1, 1, 2, 2.0))
sketch4.addConstraint(Sketcher.Constraint("DistanceY", -1, 1, 0, 2, 2.0))
sketch4.setExpression("Constraints[46]", "Params.sketch4_radius")
sketch4.setExpression("Constraints[47]", "Params.sketch4_width")
pocket2 = body.newObject("PartDesign::Pocket", "Pocket001")
pocket2.Profile = sketch4
pocket2.setExpression("Length", "Params.pocket2_length")

doc.recompute()
